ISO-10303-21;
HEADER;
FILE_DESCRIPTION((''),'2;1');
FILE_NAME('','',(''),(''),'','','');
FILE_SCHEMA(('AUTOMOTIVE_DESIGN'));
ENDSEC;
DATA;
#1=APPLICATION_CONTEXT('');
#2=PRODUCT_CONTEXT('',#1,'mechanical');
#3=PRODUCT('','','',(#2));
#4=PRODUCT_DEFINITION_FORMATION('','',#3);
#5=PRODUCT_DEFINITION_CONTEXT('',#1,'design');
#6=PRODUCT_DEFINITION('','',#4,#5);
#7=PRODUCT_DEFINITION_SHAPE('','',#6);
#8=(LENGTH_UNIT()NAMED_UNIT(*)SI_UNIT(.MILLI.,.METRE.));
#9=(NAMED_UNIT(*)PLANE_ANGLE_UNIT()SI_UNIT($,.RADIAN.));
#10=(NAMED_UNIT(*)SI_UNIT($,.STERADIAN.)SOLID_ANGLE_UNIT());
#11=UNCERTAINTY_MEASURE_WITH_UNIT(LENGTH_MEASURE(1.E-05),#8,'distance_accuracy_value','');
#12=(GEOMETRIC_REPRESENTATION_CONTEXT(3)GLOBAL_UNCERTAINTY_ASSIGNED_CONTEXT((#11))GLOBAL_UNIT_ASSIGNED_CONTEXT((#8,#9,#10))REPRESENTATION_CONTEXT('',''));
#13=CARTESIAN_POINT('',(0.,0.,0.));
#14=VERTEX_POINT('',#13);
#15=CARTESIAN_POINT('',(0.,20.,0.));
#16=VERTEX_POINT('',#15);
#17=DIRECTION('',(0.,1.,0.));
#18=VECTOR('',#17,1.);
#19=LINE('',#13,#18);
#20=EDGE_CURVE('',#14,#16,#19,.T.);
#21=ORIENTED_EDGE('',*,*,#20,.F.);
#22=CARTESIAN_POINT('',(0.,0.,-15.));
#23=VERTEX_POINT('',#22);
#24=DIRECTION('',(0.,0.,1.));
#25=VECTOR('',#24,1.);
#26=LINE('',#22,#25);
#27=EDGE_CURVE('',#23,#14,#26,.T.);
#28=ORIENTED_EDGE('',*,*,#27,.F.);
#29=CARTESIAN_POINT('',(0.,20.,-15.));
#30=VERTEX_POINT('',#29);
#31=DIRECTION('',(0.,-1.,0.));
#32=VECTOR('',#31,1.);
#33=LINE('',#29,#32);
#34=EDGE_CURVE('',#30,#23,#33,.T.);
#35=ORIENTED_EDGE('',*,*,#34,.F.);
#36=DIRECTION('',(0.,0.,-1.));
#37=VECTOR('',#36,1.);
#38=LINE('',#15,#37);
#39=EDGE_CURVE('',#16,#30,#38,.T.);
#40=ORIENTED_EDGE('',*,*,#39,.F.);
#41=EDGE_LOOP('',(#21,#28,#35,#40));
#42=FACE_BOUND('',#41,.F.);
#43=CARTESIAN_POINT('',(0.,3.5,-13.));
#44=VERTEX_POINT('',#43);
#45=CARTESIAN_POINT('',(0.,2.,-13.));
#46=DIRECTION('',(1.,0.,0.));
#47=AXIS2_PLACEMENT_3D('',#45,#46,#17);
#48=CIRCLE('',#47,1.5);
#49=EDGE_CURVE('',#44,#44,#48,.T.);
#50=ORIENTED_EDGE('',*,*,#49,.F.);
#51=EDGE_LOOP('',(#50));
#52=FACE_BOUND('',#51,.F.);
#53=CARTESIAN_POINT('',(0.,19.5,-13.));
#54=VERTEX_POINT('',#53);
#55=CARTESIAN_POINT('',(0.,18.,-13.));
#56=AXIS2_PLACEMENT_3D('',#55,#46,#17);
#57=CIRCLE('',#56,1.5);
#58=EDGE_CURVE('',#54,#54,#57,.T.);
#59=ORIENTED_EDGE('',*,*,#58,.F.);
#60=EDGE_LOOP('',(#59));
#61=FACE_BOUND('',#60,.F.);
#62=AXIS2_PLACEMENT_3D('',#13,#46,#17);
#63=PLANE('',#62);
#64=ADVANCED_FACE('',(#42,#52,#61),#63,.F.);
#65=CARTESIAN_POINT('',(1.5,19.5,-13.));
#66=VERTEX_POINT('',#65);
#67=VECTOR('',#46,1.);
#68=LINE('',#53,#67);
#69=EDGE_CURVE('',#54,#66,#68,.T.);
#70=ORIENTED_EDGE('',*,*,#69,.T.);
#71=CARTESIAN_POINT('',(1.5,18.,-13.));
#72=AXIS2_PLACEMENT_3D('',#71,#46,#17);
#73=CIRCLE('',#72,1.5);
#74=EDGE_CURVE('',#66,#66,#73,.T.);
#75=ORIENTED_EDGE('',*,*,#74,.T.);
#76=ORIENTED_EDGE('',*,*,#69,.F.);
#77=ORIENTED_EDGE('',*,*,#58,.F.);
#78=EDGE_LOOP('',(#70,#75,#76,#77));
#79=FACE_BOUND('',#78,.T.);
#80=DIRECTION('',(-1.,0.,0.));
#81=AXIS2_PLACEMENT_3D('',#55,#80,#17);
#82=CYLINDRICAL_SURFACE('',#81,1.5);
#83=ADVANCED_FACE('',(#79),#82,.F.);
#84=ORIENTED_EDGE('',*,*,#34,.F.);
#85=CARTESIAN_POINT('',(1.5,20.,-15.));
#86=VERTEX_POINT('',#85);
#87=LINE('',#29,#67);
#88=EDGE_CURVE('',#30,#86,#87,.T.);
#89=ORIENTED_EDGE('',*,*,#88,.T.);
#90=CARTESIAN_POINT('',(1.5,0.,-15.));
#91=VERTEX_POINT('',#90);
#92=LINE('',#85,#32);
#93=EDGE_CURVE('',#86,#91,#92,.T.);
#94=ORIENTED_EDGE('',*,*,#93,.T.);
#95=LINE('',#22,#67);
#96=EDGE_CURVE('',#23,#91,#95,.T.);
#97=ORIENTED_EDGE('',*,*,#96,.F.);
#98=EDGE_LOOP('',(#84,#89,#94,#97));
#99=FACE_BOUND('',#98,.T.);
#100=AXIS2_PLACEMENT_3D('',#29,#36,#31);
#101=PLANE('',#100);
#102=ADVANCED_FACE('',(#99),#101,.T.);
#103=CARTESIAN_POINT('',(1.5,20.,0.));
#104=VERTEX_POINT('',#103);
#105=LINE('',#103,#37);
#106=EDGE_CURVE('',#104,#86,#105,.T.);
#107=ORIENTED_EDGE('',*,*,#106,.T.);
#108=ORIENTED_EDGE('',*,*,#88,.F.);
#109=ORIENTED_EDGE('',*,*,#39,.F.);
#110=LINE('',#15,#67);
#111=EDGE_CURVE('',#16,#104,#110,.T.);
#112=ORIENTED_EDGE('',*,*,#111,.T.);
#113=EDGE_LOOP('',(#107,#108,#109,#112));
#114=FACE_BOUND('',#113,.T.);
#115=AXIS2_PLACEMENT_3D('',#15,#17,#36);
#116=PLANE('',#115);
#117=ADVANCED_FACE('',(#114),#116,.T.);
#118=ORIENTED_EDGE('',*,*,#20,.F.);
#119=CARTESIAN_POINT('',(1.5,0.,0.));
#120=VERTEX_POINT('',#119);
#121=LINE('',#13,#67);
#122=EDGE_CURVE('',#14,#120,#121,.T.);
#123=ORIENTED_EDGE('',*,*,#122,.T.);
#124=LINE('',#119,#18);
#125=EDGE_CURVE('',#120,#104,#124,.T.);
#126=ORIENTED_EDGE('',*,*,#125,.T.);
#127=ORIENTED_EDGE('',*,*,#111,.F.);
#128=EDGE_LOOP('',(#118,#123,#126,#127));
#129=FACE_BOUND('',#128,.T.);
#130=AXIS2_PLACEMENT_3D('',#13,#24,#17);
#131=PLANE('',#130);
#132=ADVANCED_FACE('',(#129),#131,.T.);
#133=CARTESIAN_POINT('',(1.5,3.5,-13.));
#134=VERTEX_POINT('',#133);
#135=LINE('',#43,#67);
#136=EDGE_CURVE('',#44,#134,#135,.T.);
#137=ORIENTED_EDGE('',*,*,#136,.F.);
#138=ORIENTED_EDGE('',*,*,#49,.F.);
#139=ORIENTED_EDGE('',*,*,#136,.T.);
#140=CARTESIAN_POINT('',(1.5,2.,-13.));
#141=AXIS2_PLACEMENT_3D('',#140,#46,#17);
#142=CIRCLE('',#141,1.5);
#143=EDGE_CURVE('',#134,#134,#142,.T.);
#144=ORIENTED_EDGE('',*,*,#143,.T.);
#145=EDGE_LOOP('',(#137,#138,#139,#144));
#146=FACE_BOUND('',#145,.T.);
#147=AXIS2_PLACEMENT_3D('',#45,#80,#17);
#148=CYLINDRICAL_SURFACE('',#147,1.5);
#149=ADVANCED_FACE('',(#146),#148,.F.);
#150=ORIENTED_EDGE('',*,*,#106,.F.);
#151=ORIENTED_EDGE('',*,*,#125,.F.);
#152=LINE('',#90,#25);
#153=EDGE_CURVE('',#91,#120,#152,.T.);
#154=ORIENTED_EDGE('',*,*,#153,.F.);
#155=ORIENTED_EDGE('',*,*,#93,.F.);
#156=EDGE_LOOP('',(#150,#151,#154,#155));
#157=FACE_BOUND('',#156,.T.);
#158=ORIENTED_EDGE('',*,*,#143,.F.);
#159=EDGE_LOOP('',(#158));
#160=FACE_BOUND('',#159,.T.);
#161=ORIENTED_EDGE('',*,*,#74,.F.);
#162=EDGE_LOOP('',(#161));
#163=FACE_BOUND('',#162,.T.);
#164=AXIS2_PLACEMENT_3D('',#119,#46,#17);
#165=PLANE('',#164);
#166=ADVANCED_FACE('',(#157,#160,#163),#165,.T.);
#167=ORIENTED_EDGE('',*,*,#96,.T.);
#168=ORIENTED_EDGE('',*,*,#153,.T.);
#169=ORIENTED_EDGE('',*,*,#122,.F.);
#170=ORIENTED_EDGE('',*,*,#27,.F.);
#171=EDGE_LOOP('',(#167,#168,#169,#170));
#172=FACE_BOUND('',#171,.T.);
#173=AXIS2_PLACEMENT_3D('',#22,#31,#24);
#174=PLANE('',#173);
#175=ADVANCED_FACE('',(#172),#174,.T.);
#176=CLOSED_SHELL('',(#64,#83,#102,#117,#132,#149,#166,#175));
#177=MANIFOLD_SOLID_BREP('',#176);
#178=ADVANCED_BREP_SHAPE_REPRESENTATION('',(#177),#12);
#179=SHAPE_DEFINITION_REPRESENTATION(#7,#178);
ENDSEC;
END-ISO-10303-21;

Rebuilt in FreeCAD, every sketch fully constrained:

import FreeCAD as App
import Part
import Sketcher
from FreeCAD import Vector
Q = App.Units.Quantity


def add_polygon(sketch, points):
    """Adds a closed chain of lines whose ends are joined by coincident constraints."""
    first, n = sketch.GeometryCount, len(points)
    for a, b in zip(points, points[1:] + points[:1]):
        sketch.addGeometry(Part.LineSegment(App.Vector(*a, 0), App.Vector(*b, 0)), False)
    for i in range(n):
        sketch.addConstraint(Sketcher.Constraint("Coincident", first + i, 2, first + (i + 1) % n, 1))

doc = App.newDocument("Part")
body = doc.addObject("PartDesign::Body", "Body")

sketch1 = body.newObject("Sketcher::SketchObject", "Sketch")
sketch1.AttachmentSupport = (doc.getObject("YZ_Plane"), [""])
sketch1.MapMode = "FlatFace"
add_polygon(sketch1, [(20, 0), (0, 0), (0, -15), (20, -15)])
sketch1.addGeometry(Part.Circle(Vector(2, -13, 0), Vector(0, 0, 1), 1.5), False)
sketch1.addGeometry(Part.Circle(Vector(18, -13, 0), Vector(0, 0, 1), 1.5), False)
sketch1.addConstraint([
    Sketcher.Constraint("Horizontal", 0),
    Sketcher.Constraint("Vertical", 1),
    Sketcher.Constraint("Horizontal", 2),
    Sketcher.Constraint("Vertical", 3),
    Sketcher.Constraint("Coincident", 0, 2, -1, 1),
    Sketcher.Constraint("Equal", 4, 5),
    Sketcher.Constraint("Horizontal", 4, 3, 5, 3),
    Sketcher.Constraint("Diameter", 4, Q("3 mm")),
    Sketcher.Constraint("DistanceX", 0, 2, 0, 1, Q("20 mm")),
    Sketcher.Constraint("DistanceY", 1, 2, 1, 1, Q("15 mm")),
    Sketcher.Constraint("DistanceX", -1, 1, 4, 3, Q("2 mm")),
    Sketcher.Constraint("DistanceY", 4, 3, -1, 1, Q("13 mm")),
    Sketcher.Constraint("DistanceX", -1, 1, 5, 3, Q("18 mm")),
])
pad1 = body.newObject("PartDesign::Pad", "Pad")
pad1.Profile = sketch1
pad1.Length = 1.5

doc.recompute()
